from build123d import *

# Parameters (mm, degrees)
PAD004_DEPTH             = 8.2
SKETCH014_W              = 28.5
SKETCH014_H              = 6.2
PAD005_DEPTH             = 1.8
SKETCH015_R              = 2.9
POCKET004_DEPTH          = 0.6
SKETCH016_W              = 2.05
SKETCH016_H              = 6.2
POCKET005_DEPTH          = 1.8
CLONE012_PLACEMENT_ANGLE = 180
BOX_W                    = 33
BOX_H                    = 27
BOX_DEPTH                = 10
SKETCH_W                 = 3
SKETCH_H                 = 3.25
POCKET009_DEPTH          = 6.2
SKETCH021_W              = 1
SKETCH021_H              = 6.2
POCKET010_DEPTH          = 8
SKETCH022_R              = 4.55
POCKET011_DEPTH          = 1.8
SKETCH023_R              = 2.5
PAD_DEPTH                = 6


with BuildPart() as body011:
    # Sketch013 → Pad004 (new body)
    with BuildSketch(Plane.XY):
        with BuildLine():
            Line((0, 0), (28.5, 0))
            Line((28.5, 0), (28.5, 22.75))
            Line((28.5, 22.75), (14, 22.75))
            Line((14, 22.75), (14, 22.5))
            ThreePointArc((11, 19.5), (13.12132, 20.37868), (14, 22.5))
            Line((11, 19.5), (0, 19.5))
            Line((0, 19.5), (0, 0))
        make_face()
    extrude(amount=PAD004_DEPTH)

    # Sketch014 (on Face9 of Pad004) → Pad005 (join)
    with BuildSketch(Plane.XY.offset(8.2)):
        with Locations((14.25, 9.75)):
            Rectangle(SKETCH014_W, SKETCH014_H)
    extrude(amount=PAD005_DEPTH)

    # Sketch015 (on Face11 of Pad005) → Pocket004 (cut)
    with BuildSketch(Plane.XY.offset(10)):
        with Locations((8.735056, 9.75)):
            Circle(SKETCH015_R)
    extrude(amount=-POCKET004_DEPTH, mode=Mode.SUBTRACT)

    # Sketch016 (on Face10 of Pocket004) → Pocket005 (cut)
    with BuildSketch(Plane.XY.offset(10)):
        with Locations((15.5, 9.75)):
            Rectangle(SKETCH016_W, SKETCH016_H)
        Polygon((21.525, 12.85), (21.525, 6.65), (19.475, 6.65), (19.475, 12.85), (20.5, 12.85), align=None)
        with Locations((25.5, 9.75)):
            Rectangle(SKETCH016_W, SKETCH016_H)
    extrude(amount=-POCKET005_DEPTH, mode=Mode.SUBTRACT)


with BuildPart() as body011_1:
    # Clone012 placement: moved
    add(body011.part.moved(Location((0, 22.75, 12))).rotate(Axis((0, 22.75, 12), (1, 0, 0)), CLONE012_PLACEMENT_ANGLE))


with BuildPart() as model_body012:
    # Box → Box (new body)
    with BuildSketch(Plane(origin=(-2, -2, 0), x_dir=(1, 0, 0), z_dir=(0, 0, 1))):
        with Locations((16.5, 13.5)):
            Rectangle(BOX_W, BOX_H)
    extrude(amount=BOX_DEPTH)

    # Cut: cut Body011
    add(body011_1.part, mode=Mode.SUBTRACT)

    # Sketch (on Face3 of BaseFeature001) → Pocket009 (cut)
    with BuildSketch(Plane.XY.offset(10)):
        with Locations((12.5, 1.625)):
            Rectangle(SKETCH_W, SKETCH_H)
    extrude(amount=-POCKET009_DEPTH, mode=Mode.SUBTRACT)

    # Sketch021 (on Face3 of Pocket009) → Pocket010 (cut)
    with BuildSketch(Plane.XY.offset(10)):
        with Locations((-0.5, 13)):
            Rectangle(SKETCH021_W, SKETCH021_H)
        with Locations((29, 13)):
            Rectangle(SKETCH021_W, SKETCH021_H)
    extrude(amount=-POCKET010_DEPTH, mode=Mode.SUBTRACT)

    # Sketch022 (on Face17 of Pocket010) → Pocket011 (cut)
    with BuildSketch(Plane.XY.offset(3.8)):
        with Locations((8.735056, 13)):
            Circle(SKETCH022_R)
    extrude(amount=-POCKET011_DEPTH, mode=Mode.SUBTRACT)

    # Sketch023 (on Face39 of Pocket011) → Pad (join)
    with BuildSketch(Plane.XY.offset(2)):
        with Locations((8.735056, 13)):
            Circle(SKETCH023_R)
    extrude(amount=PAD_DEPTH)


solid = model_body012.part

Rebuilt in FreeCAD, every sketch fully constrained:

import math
import FreeCAD as App
import Part
import Sketcher
Q = App.Units.Quantity


def add_polygon(sketch, points):
    """Adds a closed chain of lines whose ends are joined by coincident constraints."""
    first, n = sketch.GeometryCount, len(points)
    for a, b in zip(points, points[1:] + points[:1]):
        sketch.addGeometry(Part.LineSegment(App.Vector(*a, 0), App.Vector(*b, 0)), False)
    for i in range(n):
        sketch.addConstraint(Sketcher.Constraint("Coincident", first + i, 2, first + (i + 1) % n, 1))

doc = App.newDocument("Part")
body = doc.addObject("PartDesign::Body", "Body")

# Sketch on XY plane
sketch1 = body.newObject("Sketcher::SketchObject", "Sketch")
sketch1.AttachmentSupport = (doc.getObject("XY_Plane"), [""])
sketch1.MapMode = "FlatFace"
sketch1.addGeometry(Part.LineSegment(App.Vector(0, 0, 0), App.Vector(28.5, 0, 0)), False)
sketch1.addGeometry(Part.LineSegment(App.Vector(28.5, 0, 0), App.Vector(28.5, 22.75, 0)), False)
sketch1.addGeometry(Part.LineSegment(App.Vector(28.5, 22.75, 0), App.Vector(14, 22.75, 0)), False)
sketch1.addGeometry(Part.LineSegment(App.Vector(14, 22.75, 0), App.Vector(14, 22.5, 0)), False)
sketch1.addGeometry(Part.ArcOfCircle(Part.Circle(App.Vector(10.999999, 22.500001, 0), App.Vector(0, 0, 1), 3.000001), math.radians(-89.999978), math.radians(-0.000022)), False)
sketch1.addGeometry(Part.LineSegment(App.Vector(11, 19.5, 0), App.Vector(0, 19.5, 0)), False)
sketch1.addGeometry(Part.LineSegment(App.Vector(0, 19.5, 0), App.Vector(0, 0, 0)), False)
sketch1.addConstraint(Sketcher.Constraint("Coincident", 0, 2, 1, 1))
sketch1.addConstraint(Sketcher.Constraint("Coincident", 1, 2, 2, 1))
sketch1.addConstraint(Sketcher.Constraint("Coincident", 2, 2, 3, 1))
sketch1.addConstraint(Sketcher.Constraint("Tangent", 3, 2, 4, 2))
sketch1.addConstraint(Sketcher.Constraint("Tangent", 4, 1, 5, 1))
sketch1.addConstraint(Sketcher.Constraint("Coincident", 5, 2, 6, 1))
sketch1.addConstraint(Sketcher.Constraint("Coincident", 6, 2, 0, 1))
sketch1.addConstraint(Sketcher.Constraint("Horizontal", 0))
sketch1.addConstraint(Sketcher.Constraint("Vertical", 1))
sketch1.addConstraint(Sketcher.Constraint("Horizontal", 2))
sketch1.addConstraint(Sketcher.Constraint("Vertical", 3))
sketch1.addConstraint(Sketcher.Constraint("Horizontal", 5))
sketch1.addConstraint(Sketcher.Constraint("Vertical", 6))
sketch1.addConstraint(Sketcher.Constraint("Coincident", 6, 2, -1, 1))
sketch1.addConstraint(Sketcher.Constraint("Radius", 4, Q("3.000001 mm")))
sketch1.addConstraint(Sketcher.Constraint("DistanceX", 5, 2, 5, 1, Q("11 mm")))
sketch1.addConstraint(Sketcher.Constraint("DistanceX", 0, 1, 0, 2, Q("28.5 mm")))
sketch1.addConstraint(Sketcher.Constraint("DistanceY", 6, 2, 6, 1, Q("19.5 mm")))
sketch1.addConstraint(Sketcher.Constraint("DistanceY", 1, 1, 1, 2, Q("22.75 mm")))
pad1 = body.newObject("PartDesign::Pad", "Pad")
pad1.Profile = sketch1
pad1.Length = 8.2

# Sketch on XY plane
sketch2 = body.newObject("Sketcher::SketchObject", "Sketch001")
sketch2.AttachmentSupport = (doc.getObject("XY_Plane"), [""])
sketch2.MapMode = "FlatFace"
sketch2.AttachmentOffset = App.Placement(App.Vector(0, 0, 8.2), App.Rotation())
add_polygon(sketch2, [(0, 12.85), (0, 6.65), (28.5, 6.65), (28.5, 12.85)])  # lines 0-3
sketch2.addConstraint(Sketcher.Constraint("Vertical", 0))
sketch2.addConstraint(Sketcher.Constraint("Horizontal", 1))
sketch2.addConstraint(Sketcher.Constraint("Vertical", 2))
sketch2.addConstraint(Sketcher.Constraint("Horizontal", 3))
sketch2.addConstraint(Sketcher.Constraint("PointOnObject", 0, 2, -2))
sketch2.addConstraint(Sketcher.Constraint("DistanceX", 1, 1, 1, 2, Q("28.5 mm")))
sketch2.addConstraint(Sketcher.Constraint("DistanceY", 0, 2, 0, 1, Q("6.2 mm")))
sketch2.addConstraint(Sketcher.Constraint("DistanceY", -1, 1, 0, 2, Q("6.65 mm")))
pad2 = body.newObject("PartDesign::Pad", "Pad001")
pad2.Profile = sketch2
pad2.Length = 1.8

# Sketch on XY plane
sketch3 = body.newObject("Sketcher::SketchObject", "Sketch002")
sketch3.AttachmentSupport = (doc.getObject("XY_Plane"), [""])
sketch3.MapMode = "FlatFace"
sketch3.AttachmentOffset = App.Placement(App.Vector(0, 0, 10), App.Rotation())
sketch3.addGeometry(Part.Circle(App.Vector(8.735056, 9.75, 0), App.Vector(0, 0, 1), 2.9), False)
sketch3.addConstraint(Sketcher.Constraint("Diameter", 0, Q("5.8 mm")))
sketch3.addConstraint(Sketcher.Constraint("DistanceY", -1, 1, 0, 3, Q("9.75 mm")))
sketch3.addConstraint(Sketcher.Constraint("DistanceX", -1, 1, 0, 3, Q("8.735056 mm")))
pocket1 = body.newObject("PartDesign::Pocket", "Pocket")
pocket1.Profile = sketch3
pocket1.Length = 0.6

# Sketch on XY plane
sketch4 = body.newObject("Sketcher::SketchObject", "Sketch003")
sketch4.AttachmentSupport = (doc.getObject("XY_Plane"), [""])
sketch4.MapMode = "FlatFace"
sketch4.AttachmentOffset = App.Placement(App.Vector(0, 0, 10), App.Rotation())
add_polygon(sketch4, [(14.475, 12.85), (14.475, 6.65), (16.525, 6.65), (16.525, 12.85)])  # lines 0-3
add_polygon(sketch4, [(21.525, 6.65), (21.525, 12.85), (19.475, 12.85), (19.475, 6.65)])  # lines 4-7
add_polygon(sketch4, [(24.475, 12.85), (24.475, 6.65), (26.525, 6.65), (26.525, 12.85)])  # lines 8-11
sketch4.addConstraint(Sketcher.Constraint("Vertical", 0))
sketch4.addConstraint(Sketcher.Constraint("Horizontal", 1))
sketch4.addConstraint(Sketcher.Constraint("Vertical", 2))
sketch4.addConstraint(Sketcher.Constraint("Horizontal", 3))
sketch4.addConstraint(Sketcher.Constraint("Vertical", 4))
sketch4.addConstraint(Sketcher.Constraint("Horizontal", 5))
sketch4.addConstraint(Sketcher.Constraint("Vertical", 6))
sketch4.addConstraint(Sketcher.Constraint("Horizontal", 7))
sketch4.addConstraint(Sketcher.Constraint("Vertical", 8))
sketch4.addConstraint(Sketcher.Constraint("Horizontal", 9))
sketch4.addConstraint(Sketcher.Constraint("Vertical", 10))
sketch4.addConstraint(Sketcher.Constraint("Horizontal", 11))
sketch4.addConstraint(Sketcher.Constraint("Horizontal", 3, 2, 4, 2))
sketch4.addConstraint(Sketcher.Constraint("Horizontal", 1, 2, 6, 2))
sketch4.addConstraint(Sketcher.Constraint("Horizontal", 7, 2, 8, 2))
sketch4.addConstraint(Sketcher.Constraint("Horizontal", 5, 2, 10, 2))
sketch4.addConstraint(Sketcher.Constraint("Equal", 3, 5))
sketch4.addConstraint(Sketcher.Constraint("Equal", 7, 9))
sketch4.addConstraint(Sketcher.Constraint("DistanceY", 0, 2, 0, 1, Q("6.2 mm")))
sketch4.addConstraint(Sketcher.Constraint("DistanceX", 2, 2, 4, 2, Q("5 mm")))
sketch4.addConstraint(Sketcher.Constraint("DistanceX", 6, 2, 8, 2, Q("5 mm")))
sketch4.addConstraint(Sketcher.Constraint("DistanceX", 1, 1, 1, 2, Q("2.05 mm")))
sketch4.addConstraint(Sketcher.Constraint("DistanceY", -1, 1, 0, 2, Q("6.65 mm")))
sketch4.addConstraint(Sketcher.Constraint("DistanceX", -1, 1, 0, 2, Q("14.475 mm")))
pocket2 = body.newObject("PartDesign::Pocket", "Pocket001")
pocket2.Profile = sketch4
pocket2.Length = 1.8
body2 = doc.addObject("PartDesign::Body", "Body001")
doc.recompute()

body.Placement = App.Placement(App.Vector(0, 22.75, 12), App.Rotation(App.Vector(1, 0, 0), 180))
boolean = body2.newObject("PartDesign::Boolean", "Boolean")
boolean.Type = "Fuse"
boolean.addObjects([body])
body3 = doc.addObject("PartDesign::Body", "Body002")

# Sketch on XY plane
sketch5 = body3.newObject("Sketcher::SketchObject", "Sketch004")
sketch5.AttachmentSupport = (doc.getObject("XY_Plane002"), [""])
sketch5.MapMode = "FlatFace"
add_polygon(sketch5, [(-2, 25), (-2, -2), (31, -2), (31, 25)])  # lines 0-3
sketch5.addConstraint(Sketcher.Constraint("Vertical", 0))
sketch5.addConstraint(Sketcher.Constraint("Horizontal", 1))
sketch5.addConstraint(Sketcher.Constraint("Vertical", 2))
sketch5.addConstraint(Sketcher.Constraint("Horizontal", 3))
sketch5.addConstraint(Sketcher.Constraint("DistanceX", 1, 1, 1, 2, Q("33 mm")))
sketch5.addConstraint(Sketcher.Constraint("DistanceY", 0, 2, 0, 1, Q("27 mm")))
sketch5.addConstraint(Sketcher.Constraint("DistanceX", 0, 2, -1, 1, Q("2 mm")))
sketch5.addConstraint(Sketcher.Constraint("DistanceY", 0, 2, -1, 1, Q("2 mm")))
pad3 = body3.newObject("PartDesign::Pad", "Pad002")
pad3.Profile = sketch5
pad3.Length = 10
doc.recompute()

boolean2 = body3.newObject("PartDesign::Boolean", "Boolean001")
boolean2.Type = "Cut"
boolean2.addObjects([body2])

# Sketch on XY plane
sketch6 = body3.newObject("Sketcher::SketchObject", "Sketch005")
sketch6.AttachmentSupport = (doc.getObject("XY_Plane002"), [""])
sketch6.MapMode = "FlatFace"
sketch6.AttachmentOffset = App.Placement(App.Vector(0, 0, 10), App.Rotation())
add_polygon(sketch6, [(11, 3.25), (11, 0), (14, 0), (14, 3.25)])  # lines 0-3
sketch6.addConstraint(Sketcher.Constraint("Vertical", 0))
sketch6.addConstraint(Sketcher.Constraint("Horizontal", 1))
sketch6.addConstraint(Sketcher.Constraint("Vertical", 2))
sketch6.addConstraint(Sketcher.Constraint("Horizontal", 3))
sketch6.addConstraint(Sketcher.Constraint("PointOnObject", 0, 2, -1))
sketch6.addConstraint(Sketcher.Constraint("DistanceX", 1, 1, 1, 2, Q("3 mm")))
sketch6.addConstraint(Sketcher.Constraint("DistanceX", -1, 1, 0, 2, Q("11 mm")))
sketch6.addConstraint(Sketcher.Constraint("DistanceY", 0, 2, 0, 1, Q("3.25 mm")))
pocket3 = body3.newObject("PartDesign::Pocket", "Pocket002")
pocket3.Profile = sketch6
pocket3.Length = 6.2

# Sketch on XY plane
sketch7 = body3.newObject("Sketcher::SketchObject", "Sketch006")
sketch7.AttachmentSupport = (doc.getObject("XY_Plane002"), [""])
sketch7.MapMode = "FlatFace"
sketch7.AttachmentOffset = App.Placement(App.Vector(0, 0, 10), App.Rotation())
add_polygon(sketch7, [(-1, 16.1), (-1, 9.9), (0, 9.9), (0, 16.1)])  # lines 0-3
add_polygon(sketch7, [(28.5, 16.1), (28.5, 9.9), (29.5, 9.9), (29.5, 16.1)])  # lines 4-7
sketch7.addConstraint(Sketcher.Constraint("Vertical", 0))
sketch7.addConstraint(Sketcher.Constraint("Horizontal", 1))
sketch7.addConstraint(Sketcher.Constraint("Vertical", 2))
sketch7.addConstraint(Sketcher.Constraint("Horizontal", 3))
sketch7.addConstraint(Sketcher.Constraint("Vertical", 4))
sketch7.addConstraint(Sketcher.Constraint("Horizontal", 5))
sketch7.addConstraint(Sketcher.Constraint("Vertical", 6))
sketch7.addConstraint(Sketcher.Constraint("Horizontal", 7))
sketch7.addConstraint(Sketcher.Constraint("PointOnObject", 1, 2, -2))
sketch7.addConstraint(Sketcher.Constraint("Horizontal", 1, 2, 4, 2))
sketch7.addConstraint(Sketcher.Constraint("Horizontal", 3, 2, 6, 2))
sketch7.addConstraint(Sketcher.Constraint("Equal", 3, 5))
sketch7.addConstraint(Sketcher.Constraint("DistanceX", 1, 1, 1, 2, Q("1 mm")))
sketch7.addConstraint(Sketcher.Constraint("DistanceY", 0, 2, 0, 1, Q("6.2 mm")))
sketch7.addConstraint(Sketcher.Constraint("DistanceY", -1, 1, 0, 2, Q("9.9 mm")))
sketch7.addConstraint(Sketcher.Constraint("DistanceX", -1, 1, 4, 2, Q("28.5 mm")))
pocket4 = body3.newObject("PartDesign::Pocket", "Pocket003")
pocket4.Profile = sketch7
pocket4.Length = 8

# Sketch on XY plane
sketch8 = body3.newObject("Sketcher::SketchObject", "Sketch007")
sketch8.AttachmentSupport = (doc.getObject("XY_Plane002"), [""])
sketch8.MapMode = "FlatFace"
sketch8.AttachmentOffset = App.Placement(App.Vector(0, 0, 3.8), App.Rotation())
sketch8.addGeometry(Part.Circle(App.Vector(8.735056, 13, 0), App.Vector(0, 0, 1), 4.55), False)
sketch8.addConstraint(Sketcher.Constraint("Diameter", 0, Q("9.1 mm")))
sketch8.addConstraint(Sketcher.Constraint("DistanceY", -1, 1, 0, 3, Q("13 mm")))
sketch8.addConstraint(Sketcher.Constraint("DistanceX", -1, 1, 0, 3, Q("8.735056 mm")))
pocket5 = body3.newObject("PartDesign::Pocket", "Pocket004")
pocket5.Profile = sketch8
pocket5.Length = 1.8

# Sketch on XY plane
sketch9 = body3.newObject("Sketcher::SketchObject", "Sketch008")
sketch9.AttachmentSupport = (doc.getObject("XY_Plane002"), [""])
sketch9.MapMode = "FlatFace"
sketch9.AttachmentOffset = App.Placement(App.Vector(0, 0, 2), App.Rotation())
sketch9.addGeometry(Part.Circle(App.Vector(8.735056, 13, 0), App.Vector(0, 0, 1), 2.5), False)
sketch9.addConstraint(Sketcher.Constraint("Diameter", 0, Q("5 mm")))
sketch9.addConstraint(Sketcher.Constraint("DistanceY", -1, 1, 0, 3, Q("13 mm")))
sketch9.addConstraint(Sketcher.Constraint("DistanceX", -1, 1, 0, 3, Q("8.735056 mm")))
pad4 = body3.newObject("PartDesign::Pad", "Pad003")
pad4.Profile = sketch9
pad4.Length = 6

doc.recompute()
